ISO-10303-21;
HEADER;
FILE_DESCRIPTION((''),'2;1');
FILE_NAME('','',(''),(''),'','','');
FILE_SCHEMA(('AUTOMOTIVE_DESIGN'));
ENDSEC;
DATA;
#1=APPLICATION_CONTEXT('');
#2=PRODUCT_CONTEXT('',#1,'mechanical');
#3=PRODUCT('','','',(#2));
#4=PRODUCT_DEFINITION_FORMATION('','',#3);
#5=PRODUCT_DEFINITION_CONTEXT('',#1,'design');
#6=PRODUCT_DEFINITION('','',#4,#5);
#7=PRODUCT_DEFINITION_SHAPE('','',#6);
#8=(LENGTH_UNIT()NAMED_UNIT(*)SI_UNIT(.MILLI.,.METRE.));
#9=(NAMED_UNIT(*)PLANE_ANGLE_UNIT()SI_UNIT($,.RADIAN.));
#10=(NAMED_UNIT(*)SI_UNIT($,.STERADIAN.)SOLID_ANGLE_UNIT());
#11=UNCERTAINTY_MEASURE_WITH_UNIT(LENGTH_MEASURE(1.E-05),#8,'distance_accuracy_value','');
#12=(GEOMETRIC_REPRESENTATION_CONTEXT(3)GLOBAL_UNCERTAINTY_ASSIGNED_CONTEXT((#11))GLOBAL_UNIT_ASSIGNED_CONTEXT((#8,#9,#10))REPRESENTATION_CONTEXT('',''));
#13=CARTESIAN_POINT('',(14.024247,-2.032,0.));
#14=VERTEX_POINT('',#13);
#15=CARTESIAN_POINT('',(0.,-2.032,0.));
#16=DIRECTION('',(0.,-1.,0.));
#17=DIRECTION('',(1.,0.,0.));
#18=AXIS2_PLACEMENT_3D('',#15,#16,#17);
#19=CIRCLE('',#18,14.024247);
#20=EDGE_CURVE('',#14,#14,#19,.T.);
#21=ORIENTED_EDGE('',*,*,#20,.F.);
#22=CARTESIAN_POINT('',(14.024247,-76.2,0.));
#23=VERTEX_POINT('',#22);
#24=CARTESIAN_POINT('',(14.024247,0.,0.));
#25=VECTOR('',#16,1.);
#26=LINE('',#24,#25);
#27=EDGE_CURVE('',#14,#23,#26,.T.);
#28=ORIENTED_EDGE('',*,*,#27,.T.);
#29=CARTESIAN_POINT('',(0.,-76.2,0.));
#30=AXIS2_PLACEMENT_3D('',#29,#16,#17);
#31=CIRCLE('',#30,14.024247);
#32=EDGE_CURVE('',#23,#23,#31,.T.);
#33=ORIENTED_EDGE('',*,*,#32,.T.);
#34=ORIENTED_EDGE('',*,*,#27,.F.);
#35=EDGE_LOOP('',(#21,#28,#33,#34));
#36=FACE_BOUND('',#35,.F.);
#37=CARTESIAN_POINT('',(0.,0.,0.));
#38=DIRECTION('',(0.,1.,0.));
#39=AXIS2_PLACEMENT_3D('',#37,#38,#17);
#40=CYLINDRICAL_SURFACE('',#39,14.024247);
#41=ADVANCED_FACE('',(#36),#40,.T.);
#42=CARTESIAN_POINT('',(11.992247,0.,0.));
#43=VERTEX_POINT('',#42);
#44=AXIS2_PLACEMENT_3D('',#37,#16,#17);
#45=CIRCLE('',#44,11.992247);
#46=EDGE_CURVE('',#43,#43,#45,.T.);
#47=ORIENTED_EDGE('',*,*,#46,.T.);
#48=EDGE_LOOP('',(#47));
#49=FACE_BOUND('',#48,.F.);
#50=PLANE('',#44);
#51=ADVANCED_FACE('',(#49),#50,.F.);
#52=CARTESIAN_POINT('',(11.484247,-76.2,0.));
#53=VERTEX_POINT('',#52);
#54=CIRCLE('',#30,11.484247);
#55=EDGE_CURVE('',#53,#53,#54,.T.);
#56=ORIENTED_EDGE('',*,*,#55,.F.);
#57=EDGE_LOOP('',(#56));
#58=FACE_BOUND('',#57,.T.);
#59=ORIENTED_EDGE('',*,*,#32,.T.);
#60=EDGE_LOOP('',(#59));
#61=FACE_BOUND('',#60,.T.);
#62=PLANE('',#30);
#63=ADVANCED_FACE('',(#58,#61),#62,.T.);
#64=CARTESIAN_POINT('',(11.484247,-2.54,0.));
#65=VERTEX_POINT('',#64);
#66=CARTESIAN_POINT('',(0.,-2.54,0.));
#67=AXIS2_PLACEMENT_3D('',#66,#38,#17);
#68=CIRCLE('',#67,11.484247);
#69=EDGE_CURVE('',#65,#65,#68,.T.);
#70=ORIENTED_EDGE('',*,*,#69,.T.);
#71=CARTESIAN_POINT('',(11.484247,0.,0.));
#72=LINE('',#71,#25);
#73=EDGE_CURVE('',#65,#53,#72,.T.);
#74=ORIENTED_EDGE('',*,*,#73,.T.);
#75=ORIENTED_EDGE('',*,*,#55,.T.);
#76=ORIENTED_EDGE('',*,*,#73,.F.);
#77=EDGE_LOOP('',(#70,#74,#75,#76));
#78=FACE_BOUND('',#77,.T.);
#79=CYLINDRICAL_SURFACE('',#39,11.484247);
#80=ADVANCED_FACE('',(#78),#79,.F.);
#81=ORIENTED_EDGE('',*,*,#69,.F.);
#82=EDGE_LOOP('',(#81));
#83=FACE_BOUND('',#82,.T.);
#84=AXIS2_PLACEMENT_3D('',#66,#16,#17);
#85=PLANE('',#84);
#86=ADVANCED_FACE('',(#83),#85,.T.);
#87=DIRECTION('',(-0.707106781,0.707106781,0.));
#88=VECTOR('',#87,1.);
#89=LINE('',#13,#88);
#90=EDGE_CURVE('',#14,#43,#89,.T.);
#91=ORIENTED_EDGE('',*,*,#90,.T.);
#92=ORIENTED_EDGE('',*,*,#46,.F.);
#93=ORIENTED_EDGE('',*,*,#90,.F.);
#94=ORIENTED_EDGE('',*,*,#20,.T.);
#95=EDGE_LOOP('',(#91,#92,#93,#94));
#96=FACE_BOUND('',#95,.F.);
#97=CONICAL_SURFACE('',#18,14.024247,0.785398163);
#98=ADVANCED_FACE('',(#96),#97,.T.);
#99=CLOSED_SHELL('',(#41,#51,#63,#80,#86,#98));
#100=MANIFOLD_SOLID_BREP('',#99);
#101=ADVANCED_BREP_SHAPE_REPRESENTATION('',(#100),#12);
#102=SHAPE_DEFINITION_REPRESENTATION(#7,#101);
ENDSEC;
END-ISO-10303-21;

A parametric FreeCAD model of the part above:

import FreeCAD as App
import Part
import Sketcher
Q = App.Units.Quantity


def edges_at(feature, points):
    """Names of the edges that pass closest to the given points."""
    edges = feature.Shape.Edges
    near = lambda p: min(range(len(edges)), key=lambda i: edges[i].distToShape(Part.Vertex(*p))[0])
    return sorted({f"Edge{near(p) + 1}" for p in points})


def faces_at(feature, points):
    """Names of the faces that lie closest to the given points."""
    faces = feature.Shape.Faces
    near = lambda p: min(range(len(faces)), key=lambda i: faces[i].distToShape(Part.Vertex(*p))[0])
    return sorted({f"Face{near(p) + 1}" for p in points})

doc = App.newDocument("Part")
params = doc.addObject("Spreadsheet::Sheet", "Params")
for row, (alias, value) in enumerate([
    ("pad1_length", "3 in"),
    ("thickness_wall", "0.1 in"),
    ("chamfer_size", "0.08 in"),
], start=1):
    params.set(f"A{row}", alias)
    params.set(f"B{row}", "=" + value)
    params.setAlias(f"B{row}", alias)

body = doc.addObject("PartDesign::Body", "Body")

# Sketch on XZ plane
sketch1 = body.newObject("Sketcher::SketchObject", "Sketch")
sketch1.AttachmentSupport = (doc.getObject("XZ_Plane"), [""])
sketch1.MapMode = "FlatFace"
sketch1.addGeometry(Part.Circle(App.Vector(0, 0, 0), App.Vector(0, 0, 1), 14), False)
sketch1.addConstraint(Sketcher.Constraint("Coincident", 0, 3, -1, 1))
sketch1.addConstraint(Sketcher.Constraint("Diameter", 0, Q("28.048494 mm")))
pad1 = body.newObject("PartDesign::Pad", "Pad")
pad1.Profile = sketch1
pad1.setExpression("Length", "Params.pad1_length")
doc.recompute()

thickness = body.newObject("PartDesign::Thickness", "Thickness")
thickness.Base = (pad1, faces_at(pad1, [(0, -76.2, 0)]))
thickness.setExpression("Value", "Params.thickness_wall")
thickness.Reversed = True
thickness.Join = "Arc"
doc.recompute()

chamfer = body.newObject("PartDesign::Chamfer", "Chamfer")
chamfer.Base = (thickness, edges_at(thickness, [(-14.024, 0, 0)]))
chamfer.setExpression("Size", "Params.chamfer_size")

doc.recompute()
